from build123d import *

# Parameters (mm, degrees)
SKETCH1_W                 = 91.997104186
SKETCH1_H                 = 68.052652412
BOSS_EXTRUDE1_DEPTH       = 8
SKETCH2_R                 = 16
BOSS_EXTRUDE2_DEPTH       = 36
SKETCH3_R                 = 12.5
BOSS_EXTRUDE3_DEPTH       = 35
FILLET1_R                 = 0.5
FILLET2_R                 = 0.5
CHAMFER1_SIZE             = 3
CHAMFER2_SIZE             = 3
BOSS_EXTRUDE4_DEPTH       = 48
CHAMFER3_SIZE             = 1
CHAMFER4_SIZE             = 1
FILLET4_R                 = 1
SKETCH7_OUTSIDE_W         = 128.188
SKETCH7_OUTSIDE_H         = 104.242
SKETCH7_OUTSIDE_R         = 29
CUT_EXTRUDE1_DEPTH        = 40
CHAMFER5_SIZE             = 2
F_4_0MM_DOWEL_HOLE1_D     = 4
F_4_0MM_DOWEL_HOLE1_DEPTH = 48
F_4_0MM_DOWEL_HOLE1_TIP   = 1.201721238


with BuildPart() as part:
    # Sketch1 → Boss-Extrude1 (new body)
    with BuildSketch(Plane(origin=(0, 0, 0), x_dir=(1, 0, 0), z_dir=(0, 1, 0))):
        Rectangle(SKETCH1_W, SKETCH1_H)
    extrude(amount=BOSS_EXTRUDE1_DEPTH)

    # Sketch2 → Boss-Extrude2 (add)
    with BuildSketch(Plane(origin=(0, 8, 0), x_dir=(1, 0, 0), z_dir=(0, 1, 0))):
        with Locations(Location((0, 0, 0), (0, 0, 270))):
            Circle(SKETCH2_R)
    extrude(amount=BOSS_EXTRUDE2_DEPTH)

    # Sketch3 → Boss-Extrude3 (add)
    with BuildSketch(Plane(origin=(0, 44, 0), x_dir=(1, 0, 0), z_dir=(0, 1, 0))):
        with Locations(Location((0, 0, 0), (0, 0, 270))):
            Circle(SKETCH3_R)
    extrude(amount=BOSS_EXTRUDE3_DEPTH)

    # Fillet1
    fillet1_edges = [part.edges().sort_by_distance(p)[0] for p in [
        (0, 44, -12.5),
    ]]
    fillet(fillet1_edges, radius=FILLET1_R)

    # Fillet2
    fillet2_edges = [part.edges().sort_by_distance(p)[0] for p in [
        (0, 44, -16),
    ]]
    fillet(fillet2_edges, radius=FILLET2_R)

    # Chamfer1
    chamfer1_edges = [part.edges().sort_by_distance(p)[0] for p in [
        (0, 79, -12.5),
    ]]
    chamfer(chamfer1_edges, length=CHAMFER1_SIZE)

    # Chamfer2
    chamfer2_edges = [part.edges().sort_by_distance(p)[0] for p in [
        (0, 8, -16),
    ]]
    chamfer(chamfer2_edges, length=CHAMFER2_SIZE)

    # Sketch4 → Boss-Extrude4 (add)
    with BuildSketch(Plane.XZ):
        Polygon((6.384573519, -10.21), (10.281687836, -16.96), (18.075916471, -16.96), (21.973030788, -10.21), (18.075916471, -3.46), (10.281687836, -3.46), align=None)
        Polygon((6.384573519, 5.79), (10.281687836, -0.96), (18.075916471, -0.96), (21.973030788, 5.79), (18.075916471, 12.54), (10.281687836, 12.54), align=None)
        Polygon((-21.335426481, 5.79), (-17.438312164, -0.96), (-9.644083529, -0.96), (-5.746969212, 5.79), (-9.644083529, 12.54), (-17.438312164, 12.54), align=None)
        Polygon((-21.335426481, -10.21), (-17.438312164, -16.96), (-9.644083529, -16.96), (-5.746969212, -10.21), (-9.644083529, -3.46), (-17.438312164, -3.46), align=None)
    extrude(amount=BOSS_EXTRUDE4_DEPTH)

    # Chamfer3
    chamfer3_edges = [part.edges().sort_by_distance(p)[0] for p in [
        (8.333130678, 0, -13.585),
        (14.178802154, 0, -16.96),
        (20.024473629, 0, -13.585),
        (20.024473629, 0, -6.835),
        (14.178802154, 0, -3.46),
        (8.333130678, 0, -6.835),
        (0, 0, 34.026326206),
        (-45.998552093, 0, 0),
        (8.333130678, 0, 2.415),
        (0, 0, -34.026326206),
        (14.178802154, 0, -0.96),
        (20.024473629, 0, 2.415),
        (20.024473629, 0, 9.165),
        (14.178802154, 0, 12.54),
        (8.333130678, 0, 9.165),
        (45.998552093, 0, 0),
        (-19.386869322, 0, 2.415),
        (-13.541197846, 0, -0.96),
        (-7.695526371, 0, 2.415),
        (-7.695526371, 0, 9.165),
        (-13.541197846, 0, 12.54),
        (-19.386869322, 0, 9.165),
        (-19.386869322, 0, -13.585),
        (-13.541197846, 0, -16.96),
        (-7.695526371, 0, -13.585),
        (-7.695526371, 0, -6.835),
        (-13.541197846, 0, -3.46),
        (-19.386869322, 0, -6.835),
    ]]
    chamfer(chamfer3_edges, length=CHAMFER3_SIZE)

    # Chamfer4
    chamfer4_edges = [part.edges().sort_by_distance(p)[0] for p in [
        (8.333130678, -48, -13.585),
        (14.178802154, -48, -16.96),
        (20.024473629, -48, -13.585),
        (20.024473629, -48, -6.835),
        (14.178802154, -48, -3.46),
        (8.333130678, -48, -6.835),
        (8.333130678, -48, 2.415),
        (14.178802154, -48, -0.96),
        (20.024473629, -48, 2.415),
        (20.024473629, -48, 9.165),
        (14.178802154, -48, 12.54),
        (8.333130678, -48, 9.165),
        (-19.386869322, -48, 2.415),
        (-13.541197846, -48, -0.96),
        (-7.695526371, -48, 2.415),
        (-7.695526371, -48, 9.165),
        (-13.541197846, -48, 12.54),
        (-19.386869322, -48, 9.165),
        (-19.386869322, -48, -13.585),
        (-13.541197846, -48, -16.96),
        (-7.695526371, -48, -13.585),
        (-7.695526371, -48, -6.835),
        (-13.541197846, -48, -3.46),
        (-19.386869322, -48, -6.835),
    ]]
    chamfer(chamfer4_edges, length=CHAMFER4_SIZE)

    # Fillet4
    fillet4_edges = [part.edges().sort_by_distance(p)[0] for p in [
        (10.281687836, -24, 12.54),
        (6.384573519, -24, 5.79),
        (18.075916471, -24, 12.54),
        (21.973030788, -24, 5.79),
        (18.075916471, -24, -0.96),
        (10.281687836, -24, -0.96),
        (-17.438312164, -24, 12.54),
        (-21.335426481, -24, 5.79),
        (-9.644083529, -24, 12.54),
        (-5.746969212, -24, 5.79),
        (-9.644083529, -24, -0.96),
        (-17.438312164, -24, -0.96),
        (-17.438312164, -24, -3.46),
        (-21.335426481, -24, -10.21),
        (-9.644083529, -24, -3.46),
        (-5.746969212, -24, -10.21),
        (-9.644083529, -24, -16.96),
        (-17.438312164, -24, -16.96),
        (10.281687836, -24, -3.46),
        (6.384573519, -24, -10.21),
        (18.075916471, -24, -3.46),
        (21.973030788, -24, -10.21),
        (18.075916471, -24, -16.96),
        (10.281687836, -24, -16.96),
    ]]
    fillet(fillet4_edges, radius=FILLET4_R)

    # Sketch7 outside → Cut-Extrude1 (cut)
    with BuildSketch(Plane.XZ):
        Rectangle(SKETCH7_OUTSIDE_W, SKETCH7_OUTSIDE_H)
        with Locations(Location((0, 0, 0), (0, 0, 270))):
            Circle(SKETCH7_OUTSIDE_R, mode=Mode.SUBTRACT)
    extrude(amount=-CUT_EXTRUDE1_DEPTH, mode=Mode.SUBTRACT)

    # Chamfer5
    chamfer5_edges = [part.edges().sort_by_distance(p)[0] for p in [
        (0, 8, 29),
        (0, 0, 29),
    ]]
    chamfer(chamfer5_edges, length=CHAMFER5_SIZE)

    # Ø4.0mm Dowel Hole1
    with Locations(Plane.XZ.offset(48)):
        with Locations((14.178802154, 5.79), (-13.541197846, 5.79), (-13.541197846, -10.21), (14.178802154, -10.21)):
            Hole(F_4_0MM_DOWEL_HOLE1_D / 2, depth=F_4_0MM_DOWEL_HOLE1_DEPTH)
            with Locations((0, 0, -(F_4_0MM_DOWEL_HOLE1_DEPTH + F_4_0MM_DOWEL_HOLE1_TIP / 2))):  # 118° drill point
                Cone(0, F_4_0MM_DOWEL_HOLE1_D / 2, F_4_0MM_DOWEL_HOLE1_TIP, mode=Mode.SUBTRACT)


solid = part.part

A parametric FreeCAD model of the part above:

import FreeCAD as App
import Part
import Sketcher

V = App.Vector
Q = App.Units.Quantity


def edges_at(feature, points):
    """Names of the edges that pass closest to the given points."""
    edges = feature.Shape.Edges
    near = lambda p: min(range(len(edges)), key=lambda i: edges[i].distToShape(Part.Vertex(*p))[0])
    return sorted({f"Edge{near(p) + 1}" for p in points})

doc = App.newDocument("Part")
params = doc.addObject("Spreadsheet::Sheet", "Params")
for row, (alias, value) in enumerate([
    ("pad1_length", "8 mm"),
    ("sketch2_diameter", "32 mm"),
    ("pad2_length", "36 mm"),
    ("sketch3_diameter", "25 mm"),
    ("pad3_length", "35 mm"),
    ("fillet_radius", "0.5 mm"),
    ("fillet2_radius", "0.5 mm"),
    ("chamfer_size", "3 mm"),
    ("chamfer2_size", "3 mm"),
    ("pad4_length", "48 mm"),
    ("chamfer3_size", "1 mm"),
    ("chamfer4_size", "1 mm"),
    ("fillet3_radius", "1 mm"),
    ("sketch5_diameter", "58 mm"),
    ("pocket1_length", "40 mm"),
    ("chamfer5_size", "2 mm"),
    ("sketch6_diameter", "4 mm"),
    ("hole_diameter", "4 mm"),
    ("hole_depth", "48 mm"),
], start=1):
    params.set(f"A{row}", alias)
    params.set(f"B{row}", "=" + value)
    params.setAlias(f"B{row}", alias)

body = doc.addObject("PartDesign::Body", "Body")

sketch1 = doc.addObject("Sketcher::SketchObject", "Sketch")
body.addObject(sketch1)
sketch1.AttachmentSupport = (doc.XZ_Plane, [""])
sketch1.MapMode = "FlatFace"
sketch1.addGeometry([
    Part.LineSegment(V(-45.998552, -34.026326, 0), V(-45.998552, 34.026326, 0)),
    Part.LineSegment(V(-45.998552, 34.026326, 0), V(45.998552, 34.026326, 0)),
    Part.LineSegment(V(45.998552, 34.026326, 0), V(45.998552, -34.026326, 0)),
    Part.LineSegment(V(45.998552, -34.026326, 0), V(-45.998552, -34.026326, 0)),
], False)
sketch1.addConstraint([
    Sketcher.Constraint("Coincident", 0, 2, 1, 1),
    Sketcher.Constraint("Coincident", 1, 2, 2, 1),
    Sketcher.Constraint("Coincident", 2, 2, 3, 1),
    Sketcher.Constraint("Coincident", 3, 2, 0, 1),
    Sketcher.Constraint("Vertical", 0),
    Sketcher.Constraint("Horizontal", 1),
    Sketcher.Constraint("Vertical", 2),
    Sketcher.Constraint("Horizontal", 3),
    Sketcher.Constraint("Symmetric", 0, 2, 2, 2, -1, 1),
    Sketcher.Constraint("DistanceX", 1, 1, 1, 2, Q("91.997104 mm")),
    Sketcher.Constraint("DistanceY", 0, 1, 0, 2, Q("68.052652 mm")),
])
pad1 = doc.addObject("PartDesign::Pad", "Pad")
body.addObject(pad1)
pad1.Profile = sketch1
pad1.setExpression("Length", "Params.pad1_length")
pad1.Reversed = True

sketch2 = doc.addObject("Sketcher::SketchObject", "Sketch001")
body.addObject(sketch2)
sketch2.AttachmentSupport = (doc.XZ_Plane, [""])
sketch2.MapMode = "FlatFace"
sketch2.AttachmentOffset = App.Placement(V(0, 0, -8), App.Rotation())
sketch2.addGeometry(Part.Circle(V(0, 0, 0), V(0, 0, 1), 16), False)
sketch2.addConstraint([
    Sketcher.Constraint("Coincident", 0, 3, -1, 1),
    Sketcher.Constraint("Diameter", 0, Q("32 mm")),
])
sketch2.setExpression("Constraints[1]", "Params.sketch2_diameter")
pad2 = doc.addObject("PartDesign::Pad", "Pad001")
body.addObject(pad2)
pad2.Profile = sketch2
pad2.setExpression("Length", "Params.pad2_length")
pad2.Reversed = True

sketch3 = doc.addObject("Sketcher::SketchObject", "Sketch002")
body.addObject(sketch3)
sketch3.AttachmentSupport = (doc.XZ_Plane, [""])
sketch3.MapMode = "FlatFace"
sketch3.AttachmentOffset = App.Placement(V(0, 0, -44), App.Rotation())
sketch3.addGeometry(Part.Circle(V(0, 0, 0), V(0, 0, 1), 12.5), False)
sketch3.addConstraint([
    Sketcher.Constraint("Coincident", 0, 3, -1, 1),
    Sketcher.Constraint("Diameter", 0, Q("25 mm")),
])
sketch3.setExpression("Constraints[1]", "Params.sketch3_diameter")
pad3 = doc.addObject("PartDesign::Pad", "Pad002")
body.addObject(pad3)
pad3.Profile = sketch3
pad3.setExpression("Length", "Params.pad3_length")
pad3.Reversed = True
doc.recompute()

fillet = doc.addObject("PartDesign::Fillet", "Fillet")
body.addObject(fillet)
fillet.Base = (pad3, edges_at(pad3, [(0, 44, -12.5)]))
fillet.setExpression("Radius", "Params.fillet_radius")
doc.recompute()

fillet2 = doc.addObject("PartDesign::Fillet", "Fillet001")
body.addObject(fillet2)
fillet2.Base = (fillet, edges_at(fillet, [(0, 44, -16)]))
fillet2.setExpression("Radius", "Params.fillet2_radius")
doc.recompute()

chamfer = doc.addObject("PartDesign::Chamfer", "Chamfer")
body.addObject(chamfer)
chamfer.Base = (fillet2, edges_at(fillet2, [(0, 79, -12.5)]))
chamfer.setExpression("Size", "Params.chamfer_size")
doc.recompute()

chamfer2 = doc.addObject("PartDesign::Chamfer", "Chamfer001")
body.addObject(chamfer2)
chamfer2.Base = (chamfer, edges_at(chamfer, [(0, 8, -16)]))
chamfer2.setExpression("Size", "Params.chamfer2_size")

sketch4 = doc.addObject("Sketcher::SketchObject", "Sketch003")
body.addObject(sketch4)
sketch4.AttachmentSupport = (doc.XZ_Plane, [""])
sketch4.MapMode = "FlatFace"
sketch4.addGeometry([
    Part.LineSegment(V(6.384574, -10.21, 0), V(10.281688, -16.96, 0)),
    Part.LineSegment(V(10.281688, -16.96, 0), V(18.075916, -16.96, 0)),
    Part.LineSegment(V(18.075916, -16.96, 0), V(21.973031, -10.21, 0)),
    Part.LineSegment(V(21.973031, -10.21, 0), V(18.075916, -3.46, 0)),
    Part.LineSegment(V(18.075916, -3.46, 0), V(10.281688, -3.46, 0)),
    Part.LineSegment(V(10.281688, -3.46, 0), V(6.384574, -10.21, 0)),
    Part.LineSegment(V(6.384574, 5.79, 0), V(10.281688, -0.96, 0)),
    Part.LineSegment(V(10.281688, -0.96, 0), V(18.075916, -0.96, 0)),
    Part.LineSegment(V(18.075916, -0.96, 0), V(21.973031, 5.79, 0)),
    Part.LineSegment(V(21.973031, 5.79, 0), V(18.075916, 12.54, 0)),
    Part.LineSegment(V(18.075916, 12.54, 0), V(10.281688, 12.54, 0)),
    Part.LineSegment(V(10.281688, 12.54, 0), V(6.384574, 5.79, 0)),
    Part.LineSegment(V(-21.335426, 5.79, 0), V(-17.438312, -0.96, 0)),
    Part.LineSegment(V(-17.438312, -0.96, 0), V(-9.644084, -0.96, 0)),
    Part.LineSegment(V(-9.644084, -0.96, 0), V(-5.746969, 5.79, 0)),
    Part.LineSegment(V(-5.746969, 5.79, 0), V(-9.644084, 12.54, 0)),
    Part.LineSegment(V(-9.644084, 12.54, 0), V(-17.438312, 12.54, 0)),
    Part.LineSegment(V(-17.438312, 12.54, 0), V(-21.335426, 5.79, 0)),
    Part.LineSegment(V(-21.335426, -10.21, 0), V(-17.438312, -16.96, 0)),
    Part.LineSegment(V(-17.438312, -16.96, 0), V(-9.644084, -16.96, 0)),
    Part.LineSegment(V(-9.644084, -16.96, 0), V(-5.746969, -10.21, 0)),
    Part.LineSegment(V(-5.746969, -10.21, 0), V(-9.644084, -3.46, 0)),
    Part.LineSegment(V(-9.644084, -3.46, 0), V(-17.438312, -3.46, 0)),
    Part.LineSegment(V(-17.438312, -3.46, 0), V(-21.335426, -10.21, 0)),
], False)
sketch4.addConstraint([
    Sketcher.Constraint("Coincident", 0, 2, 1, 1),
    Sketcher.Constraint("Coincident", 1, 2, 2, 1),
    Sketcher.Constraint("Coincident", 2, 2, 3, 1),
    Sketcher.Constraint("Coincident", 3, 2, 4, 1),
    Sketcher.Constraint("Coincident", 4, 2, 5, 1),
    Sketcher.Constraint("Coincident", 5, 2, 0, 1),
    Sketcher.Constraint("Coincident", 6, 2, 7, 1),
    Sketcher.Constraint("Coincident", 7, 2, 8, 1),
    Sketcher.Constraint("Coincident", 8, 2, 9, 1),
    Sketcher.Constraint("Coincident", 9, 2, 10, 1),
    Sketcher.Constraint("Coincident", 10, 2, 11, 1),
    Sketcher.Constraint("Coincident", 11, 2, 6, 1),
    Sketcher.Constraint("Coincident", 12, 2, 13, 1),
    Sketcher.Constraint("Coincident", 13, 2, 14, 1),
    Sketcher.Constraint("Coincident", 14, 2, 15, 1),
    Sketcher.Constraint("Coincident", 15, 2, 16, 1),
    Sketcher.Constraint("Coincident", 16, 2, 17, 1),
    Sketcher.Constraint("Coincident", 17, 2, 12, 1),
    Sketcher.Constraint("Coincident", 18, 2, 19, 1),
    Sketcher.Constraint("Coincident", 19, 2, 20, 1),
    Sketcher.Constraint("Coincident", 20, 2, 21, 1),
    Sketcher.Constraint("Coincident", 21, 2, 22, 1),
    Sketcher.Constraint("Coincident", 22, 2, 23, 1),
    Sketcher.Constraint("Coincident", 23, 2, 18, 1),
    Sketcher.Constraint("Horizontal", 1),
    Sketcher.Constraint("Horizontal", 4),
    Sketcher.Constraint("Horizontal", 7),
    Sketcher.Constraint("Horizontal", 10),
    Sketcher.Constraint("Horizontal", 13),
    Sketcher.Constraint("Horizontal", 16),
    Sketcher.Constraint("Horizontal", 19),
    Sketcher.Constraint("Horizontal", 22),
    Sketcher.Constraint("Parallel", 0, 3),
    Sketcher.Constraint("Parallel", 2, 5),
    Sketcher.Constraint("Parallel", 3, 6),
    Sketcher.Constraint("Parallel", 5, 8),
    Sketcher.Constraint("Parallel", 6, 9),
    Sketcher.Constraint("Parallel", 8, 11),
    Sketcher.Constraint("Parallel", 9, 12),
    Sketcher.Constraint("Parallel", 11, 14),
    Sketcher.Constraint("Parallel", 12, 15),
    Sketcher.Constraint("Parallel", 14, 17),
    Sketcher.Constraint("Parallel", 15, 18),
    Sketcher.Constraint("Parallel", 17, 20),
    Sketcher.Constraint("Parallel", 18, 21),
    Sketcher.Constraint("Parallel", 20, 23),
    Sketcher.Constraint("Horizontal", 2, 2, 5, 2),
    Sketcher.Constraint("Horizontal", 8, 2, 11, 2),
    Sketcher.Constraint("Horizontal", 7, 2, 12, 2),
    Sketcher.Constraint("Horizontal", 11, 2, 14, 2),
    Sketcher.Constraint("Horizontal", 10, 2, 15, 2),
    Sketcher.Constraint("Horizontal", 14, 2, 17, 2),
    Sketcher.Constraint("Horizontal", 1, 2, 18, 2),
    Sketcher.Constraint("Horizontal", 5, 2, 20, 2),
    Sketcher.Constraint("Horizontal", 4, 2, 21, 2),
    Sketcher.Constraint("Horizontal", 20, 2, 23, 2),
    Sketcher.Constraint("Vertical", 1, 2, 3, 2),
    Sketcher.Constraint("Vertical", 0, 2, 4, 2),
    Sketcher.Constraint("Vertical", 4, 2, 6, 2),
    Sketcher.Constraint("Vertical", 3, 2, 7, 2),
    Sketcher.Constraint("Vertical", 2, 2, 8, 2),
    Sketcher.Constraint("Vertical", 7, 2, 9, 2),
    Sketcher.Constraint("Vertical", 16, 2, 18, 2),
    Sketcher.Constraint("Vertical", 15, 2, 19, 2),
    Sketcher.Constraint("Equal", 10, 13),
    Sketcher.Constraint("Angle", 0, Q("-60 deg")),
    Sketcher.Constraint("DistanceY", 0, 2, 6, 2, Q("16 mm")),
    Sketcher.Constraint("DistanceY", 1, 2, 3, 2, Q("13.5 mm")),
    Sketcher.Constraint("DistanceY", 0, 2, -1, 1, Q("16.96 mm")),
    Sketcher.Constraint("DistanceX", 12, 2, 6, 2, Q("27.72 mm")),
    Sketcher.Constraint("DistanceX", 1, 1, 1, 2, Q("7.794229 mm")),
    Sketcher.Constraint("DistanceX", -1, 1, 2, 2, Q("21.973031 mm")),
])
pad4 = doc.addObject("PartDesign::Pad", "Pad003")
body.addObject(pad4)
pad4.Profile = sketch4
pad4.setExpression("Length", "Params.pad4_length")
doc.recompute()

chamfer3 = doc.addObject("PartDesign::Chamfer", "Chamfer002")
body.addObject(chamfer3)
chamfer3.Base = (pad4, edges_at(pad4, [
    (8.333, 0, -13.585),
    (14.179, 0, -16.96),
    (20.024, 0, -13.585),
    (20.024, 0, -6.835),
    (14.179, 0, -3.46),
    (8.333, 0, -6.835),
    (0, 0, 34.026),
    (-45.999, 0, 0),
    (8.333, 0, 2.415),
    (0, 0, -34.026),
    (14.179, 0, -0.96),
    (20.024, 0, 2.415),
    (20.024, 0, 9.165),
    (14.179, 0, 12.54),
    (8.333, 0, 9.165),
    (45.999, 0, 0),
    (-19.387, 0, 2.415),
    (-13.541, 0, -0.96),
    (-7.696, 0, 2.415),
    (-7.696, 0, 9.165),
    (-13.541, 0, 12.54),
    (-19.387, 0, 9.165),
    (-19.387, 0, -13.585),
    (-13.541, 0, -16.96),
    (-7.696, 0, -13.585),
    (-7.696, 0, -6.835),
    (-13.541, 0, -3.46),
    (-19.387, 0, -6.835),
]))
chamfer3.setExpression("Size", "Params.chamfer3_size")
doc.recompute()

chamfer4 = doc.addObject("PartDesign::Chamfer", "Chamfer003")
body.addObject(chamfer4)
chamfer4.Base = (chamfer3, edges_at(chamfer3, [
    (8.333, -48, -13.585),
    (14.179, -48, -16.96),
    (20.024, -48, -13.585),
    (20.024, -48, -6.835),
    (14.179, -48, -3.46),
    (8.333, -48, -6.835),
    (8.333, -48, 2.415),
    (14.179, -48, -0.96),
    (20.024, -48, 2.415),
    (20.024, -48, 9.165),
    (14.179, -48, 12.54),
    (8.333, -48, 9.165),
    (-19.387, -48, 2.415),
    (-13.541, -48, -0.96),
    (-7.696, -48, 2.415),
    (-7.696, -48, 9.165),
    (-13.541, -48, 12.54),
    (-19.387, -48, 9.165),
    (-19.387, -48, -13.585),
    (-13.541, -48, -16.96),
    (-7.696, -48, -13.585),
    (-7.696, -48, -6.835),
    (-13.541, -48, -3.46),
    (-19.387, -48, -6.835),
]))
chamfer4.setExpression("Size", "Params.chamfer4_size")
doc.recompute()

fillet3 = doc.addObject("PartDesign::Fillet", "Fillet002")
body.addObject(fillet3)
fillet3.Base = (chamfer4, edges_at(chamfer4, [
    (10.282, -24, 12.54),
    (6.385, -24, 5.79),
    (18.076, -24, 12.54),
    (21.973, -24, 5.79),
    (18.076, -24, -0.96),
    (10.282, -24, -0.96),
    (-17.438, -24, 12.54),
    (-21.335, -24, 5.79),
    (-9.644, -24, 12.54),
    (-5.747, -24, 5.79),
    (-9.644, -24, -0.96),
    (-17.438, -24, -0.96),
    (-17.438, -24, -3.46),
    (-21.335, -24, -10.21),
    (-9.644, -24, -3.46),
    (-5.747, -24, -10.21),
    (-9.644, -24, -16.96),
    (-17.438, -24, -16.96),
    (10.282, -24, -3.46),
    (6.385, -24, -10.21),
    (18.076, -24, -3.46),
    (21.973, -24, -10.21),
    (18.076, -24, -16.96),
    (10.282, -24, -16.96),
]))
fillet3.setExpression("Radius", "Params.fillet3_radius")

sketch5 = doc.addObject("Sketcher::SketchObject", "Sketch004")
body.addObject(sketch5)
sketch5.AttachmentSupport = (doc.XZ_Plane, [""])
sketch5.MapMode = "FlatFace"
sketch5.addGeometry([
    Part.LineSegment(V(-64.094, 52.121, 0), V(-64.094, -52.121, 0)),
    Part.LineSegment(V(-64.094, -52.121, 0), V(64.094, -52.121, 0)),
    Part.LineSegment(V(64.094, -52.121, 0), V(64.094, 52.121, 0)),
    Part.LineSegment(V(64.094, 52.121, 0), V(-64.094, 52.121, 0)),
    Part.Circle(V(0, 0, 0), V(0, 0, 1), 29),
], False)
sketch5.addConstraint([
    Sketcher.Constraint("Coincident", 0, 2, 1, 1),
    Sketcher.Constraint("Coincident", 1, 2, 2, 1),
    Sketcher.Constraint("Coincident", 2, 2, 3, 1),
    Sketcher.Constraint("Coincident", 3, 2, 0, 1),
    Sketcher.Constraint("Vertical", 0),
    Sketcher.Constraint("Horizontal", 1),
    Sketcher.Constraint("Vertical", 2),
    Sketcher.Constraint("Horizontal", 3),
    Sketcher.Constraint("Coincident", 4, 3, -1, 1),
    Sketcher.Constraint("Symmetric", 0, 2, 2, 2, -1, 1),
    Sketcher.Constraint("Diameter", 4, Q("58 mm")),
    Sketcher.Constraint("DistanceX", 1, 1, 1, 2, Q("128.188 mm")),
    Sketcher.Constraint("DistanceY", 0, 2, 0, 1, Q("104.242 mm")),
])
sketch5.setExpression("Constraints[10]", "Params.sketch5_diameter")
pocket1 = doc.addObject("PartDesign::Pocket", "Pocket")
body.addObject(pocket1)
pocket1.Profile = sketch5
pocket1.setExpression("Length", "Params.pocket1_length")
doc.recompute()

chamfer5 = doc.addObject("PartDesign::Chamfer", "Chamfer004")
body.addObject(chamfer5)
chamfer5.Base = (pocket1, edges_at(pocket1, [(0, 8, 29), (0, 0, 29)]))
chamfer5.setExpression("Size", "Params.chamfer5_size")

sketch6 = doc.addObject("Sketcher::SketchObject", "Sketch005")
body.addObject(sketch6)
sketch6.AttachmentSupport = (doc.XZ_Plane, [""])
sketch6.MapMode = "FlatFace"
sketch6.AttachmentOffset = App.Placement(V(0, 0, 48), App.Rotation())
sketch6.addGeometry([
    Part.Circle(V(14.178802, 5.79, 0), V(0, 0, 1), 2),
    Part.Circle(V(-13.541198, 5.79, 0), V(0, 0, 1), 2),
    Part.Circle(V(-13.541198, -10.21, 0), V(0, 0, 1), 2),
    Part.Circle(V(14.178802, -10.21, 0), V(0, 0, 1), 2),
], False)
sketch6.addConstraint([
    Sketcher.Constraint("Equal", 0, 1),
    Sketcher.Constraint("Equal", 1, 2),
    Sketcher.Constraint("Equal", 2, 3),
    Sketcher.Constraint("Horizontal", 0, 3, 1, 3),
    Sketcher.Constraint("Horizontal", 2, 3, 3, 3),
    Sketcher.Constraint("Vertical", 1, 3, 2, 3),
    Sketcher.Constraint("Vertical", 0, 3, 3, 3),
    Sketcher.Constraint("Diameter", 0, Q("4 mm")),
    Sketcher.Constraint("DistanceY", 2, 3, 1, 3, Q("16 mm")),
    Sketcher.Constraint("DistanceY", -1, 1, 0, 3, Q("5.79 mm")),
    Sketcher.Constraint("DistanceX", 1, 3, 0, 3, Q("27.72 mm")),
    Sketcher.Constraint("DistanceX", -1, 1, 0, 3, Q("14.178802 mm")),
])
sketch6.setExpression("Constraints[7]", "Params.sketch6_diameter")
doc.recompute()
hole = doc.addObject("PartDesign::Hole", "Hole")
body.addObject(hole)
hole.Profile = sketch6
hole.ThreadType = "None"
hole.setExpression("Diameter", "Params.hole_diameter")
hole.DepthType = "Dimension"
hole.setExpression("Depth", "Params.hole_depth")
hole.DrillPoint = "Angled"
hole.DrillPointAngle = 118

doc.recompute()
